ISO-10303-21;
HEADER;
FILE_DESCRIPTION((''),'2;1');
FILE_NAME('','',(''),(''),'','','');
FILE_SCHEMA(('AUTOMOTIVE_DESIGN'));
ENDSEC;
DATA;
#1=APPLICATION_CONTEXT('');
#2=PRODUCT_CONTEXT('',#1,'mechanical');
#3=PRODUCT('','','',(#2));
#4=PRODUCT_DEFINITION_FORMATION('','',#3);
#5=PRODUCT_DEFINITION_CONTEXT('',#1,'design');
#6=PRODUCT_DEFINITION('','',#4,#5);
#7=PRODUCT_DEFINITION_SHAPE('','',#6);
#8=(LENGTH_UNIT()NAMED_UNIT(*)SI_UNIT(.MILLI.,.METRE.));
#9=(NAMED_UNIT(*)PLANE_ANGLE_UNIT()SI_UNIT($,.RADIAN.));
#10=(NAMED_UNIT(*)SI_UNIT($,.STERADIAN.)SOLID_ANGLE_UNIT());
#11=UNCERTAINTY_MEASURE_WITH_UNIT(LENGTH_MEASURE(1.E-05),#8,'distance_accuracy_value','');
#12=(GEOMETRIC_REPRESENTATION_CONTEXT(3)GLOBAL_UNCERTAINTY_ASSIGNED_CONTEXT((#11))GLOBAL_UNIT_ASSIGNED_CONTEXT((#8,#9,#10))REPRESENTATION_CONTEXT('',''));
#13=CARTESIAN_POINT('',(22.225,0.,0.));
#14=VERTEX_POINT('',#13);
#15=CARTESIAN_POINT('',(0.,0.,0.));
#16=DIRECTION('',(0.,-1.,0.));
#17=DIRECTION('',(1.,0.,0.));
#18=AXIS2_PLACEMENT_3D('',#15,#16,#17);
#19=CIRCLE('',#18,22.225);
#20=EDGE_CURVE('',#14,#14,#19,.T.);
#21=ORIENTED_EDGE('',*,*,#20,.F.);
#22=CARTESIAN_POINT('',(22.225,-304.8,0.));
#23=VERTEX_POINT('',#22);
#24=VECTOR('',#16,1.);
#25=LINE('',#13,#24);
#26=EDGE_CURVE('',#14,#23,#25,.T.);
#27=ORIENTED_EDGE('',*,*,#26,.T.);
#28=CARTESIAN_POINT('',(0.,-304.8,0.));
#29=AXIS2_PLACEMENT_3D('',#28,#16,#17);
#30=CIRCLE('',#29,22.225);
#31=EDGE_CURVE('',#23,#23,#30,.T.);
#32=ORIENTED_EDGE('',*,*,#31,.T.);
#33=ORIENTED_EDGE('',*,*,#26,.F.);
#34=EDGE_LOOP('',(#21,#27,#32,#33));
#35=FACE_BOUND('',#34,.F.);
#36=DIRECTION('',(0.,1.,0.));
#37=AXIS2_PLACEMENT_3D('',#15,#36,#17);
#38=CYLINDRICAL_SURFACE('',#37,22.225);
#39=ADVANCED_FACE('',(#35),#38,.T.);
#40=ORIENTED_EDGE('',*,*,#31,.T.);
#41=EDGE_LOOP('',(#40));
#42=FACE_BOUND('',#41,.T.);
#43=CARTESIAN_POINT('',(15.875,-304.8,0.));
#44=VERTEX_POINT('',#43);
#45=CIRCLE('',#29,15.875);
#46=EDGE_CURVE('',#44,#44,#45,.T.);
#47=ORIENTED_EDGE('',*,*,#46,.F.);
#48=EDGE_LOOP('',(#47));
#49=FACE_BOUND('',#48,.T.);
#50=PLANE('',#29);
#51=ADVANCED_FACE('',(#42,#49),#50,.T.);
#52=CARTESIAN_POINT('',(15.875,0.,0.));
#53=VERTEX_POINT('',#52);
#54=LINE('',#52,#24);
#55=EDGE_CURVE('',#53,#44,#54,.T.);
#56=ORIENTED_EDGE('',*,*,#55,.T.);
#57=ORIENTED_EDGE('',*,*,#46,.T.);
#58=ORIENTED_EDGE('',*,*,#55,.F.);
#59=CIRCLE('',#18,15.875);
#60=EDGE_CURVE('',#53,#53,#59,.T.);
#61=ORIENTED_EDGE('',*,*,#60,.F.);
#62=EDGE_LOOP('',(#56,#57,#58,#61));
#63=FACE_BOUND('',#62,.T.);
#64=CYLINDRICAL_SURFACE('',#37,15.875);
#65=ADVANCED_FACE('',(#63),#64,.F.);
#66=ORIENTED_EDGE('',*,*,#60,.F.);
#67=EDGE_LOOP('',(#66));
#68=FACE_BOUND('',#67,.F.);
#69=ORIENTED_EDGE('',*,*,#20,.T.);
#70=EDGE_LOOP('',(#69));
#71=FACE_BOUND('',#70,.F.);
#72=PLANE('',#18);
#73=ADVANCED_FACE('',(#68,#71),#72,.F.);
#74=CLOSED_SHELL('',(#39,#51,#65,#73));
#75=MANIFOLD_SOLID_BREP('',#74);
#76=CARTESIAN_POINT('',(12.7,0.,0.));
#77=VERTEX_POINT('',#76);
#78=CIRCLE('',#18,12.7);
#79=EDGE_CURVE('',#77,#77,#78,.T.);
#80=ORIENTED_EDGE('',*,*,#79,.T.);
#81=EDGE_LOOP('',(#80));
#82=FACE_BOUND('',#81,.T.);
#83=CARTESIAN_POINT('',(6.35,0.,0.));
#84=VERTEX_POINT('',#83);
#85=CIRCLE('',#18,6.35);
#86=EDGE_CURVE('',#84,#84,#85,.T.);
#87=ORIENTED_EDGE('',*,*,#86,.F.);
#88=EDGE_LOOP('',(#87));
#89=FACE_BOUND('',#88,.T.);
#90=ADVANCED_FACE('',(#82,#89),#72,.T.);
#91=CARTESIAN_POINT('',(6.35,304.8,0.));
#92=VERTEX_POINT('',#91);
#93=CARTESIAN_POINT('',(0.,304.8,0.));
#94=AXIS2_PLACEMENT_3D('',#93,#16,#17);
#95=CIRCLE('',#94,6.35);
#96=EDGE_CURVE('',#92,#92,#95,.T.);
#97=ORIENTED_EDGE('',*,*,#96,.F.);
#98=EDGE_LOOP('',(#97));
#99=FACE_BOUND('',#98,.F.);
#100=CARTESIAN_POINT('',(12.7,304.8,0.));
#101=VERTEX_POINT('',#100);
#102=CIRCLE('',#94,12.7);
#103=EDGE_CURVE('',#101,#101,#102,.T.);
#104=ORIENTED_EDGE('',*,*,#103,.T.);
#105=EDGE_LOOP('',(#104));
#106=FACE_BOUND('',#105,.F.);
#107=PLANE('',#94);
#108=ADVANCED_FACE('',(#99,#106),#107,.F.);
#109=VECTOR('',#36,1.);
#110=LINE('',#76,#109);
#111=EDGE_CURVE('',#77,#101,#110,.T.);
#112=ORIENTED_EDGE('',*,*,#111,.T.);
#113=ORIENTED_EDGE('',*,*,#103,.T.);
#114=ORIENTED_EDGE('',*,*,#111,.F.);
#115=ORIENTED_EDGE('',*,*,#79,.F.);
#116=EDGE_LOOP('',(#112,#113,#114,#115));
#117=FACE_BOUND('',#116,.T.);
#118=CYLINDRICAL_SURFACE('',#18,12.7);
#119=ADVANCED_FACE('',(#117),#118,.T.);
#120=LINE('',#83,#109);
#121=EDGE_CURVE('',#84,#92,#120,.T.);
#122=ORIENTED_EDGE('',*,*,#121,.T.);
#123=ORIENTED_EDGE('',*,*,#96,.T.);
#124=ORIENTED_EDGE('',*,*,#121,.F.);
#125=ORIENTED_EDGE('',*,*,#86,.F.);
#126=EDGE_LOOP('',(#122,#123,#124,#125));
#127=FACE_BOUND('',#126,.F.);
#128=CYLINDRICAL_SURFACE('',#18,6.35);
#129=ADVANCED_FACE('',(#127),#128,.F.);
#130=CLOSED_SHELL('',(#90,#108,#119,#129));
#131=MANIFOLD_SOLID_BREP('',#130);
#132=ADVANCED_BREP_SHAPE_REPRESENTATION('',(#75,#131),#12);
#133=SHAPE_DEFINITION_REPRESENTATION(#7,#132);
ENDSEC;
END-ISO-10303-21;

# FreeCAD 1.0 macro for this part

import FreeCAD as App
import Part
import Sketcher
Q = App.Units.Quantity

doc = App.newDocument("Part")
body = doc.addObject("PartDesign::Body", "Body")

sketch1 = body.newObject("Sketcher::SketchObject", "Sketch")
sketch1.AttachmentSupport = (doc.getObject("XZ_Plane"), [""])
sketch1.MapMode = "FlatFace"
sketch1.addGeometry([
    Part.Circle(App.Vector(0, 0, 0), App.Vector(0, 0, 1), 22),
    Part.Circle(App.Vector(0, 0, 0), App.Vector(0, 0, 1), 16),
], False)
sketch1.addConstraint([
    Sketcher.Constraint("Coincident", 0, 3, -1, 1),
    Sketcher.Constraint("Coincident", 1, 3, -1, 1),
    Sketcher.Constraint("Diameter", 0, Q("1.75 in")),
    Sketcher.Constraint("Diameter", 1, Q("1.25 in")),
])
pad1 = body.newObject("PartDesign::Pad", "Pad")
pad1.Profile = sketch1
pad1.Length = Q("12 in")
body2 = doc.addObject("PartDesign::Body", "Body001")

sketch2 = body2.newObject("Sketcher::SketchObject", "Sketch001")
sketch2.AttachmentSupport = (doc.getObject("XZ_Plane001"), [""])
sketch2.MapMode = "FlatFace"
sketch2.addGeometry([
    Part.Circle(App.Vector(0, 0, 0), App.Vector(0, 0, 1), 13),
    Part.Circle(App.Vector(0, 0, 0), App.Vector(0, 0, 1), 6),
], False)
sketch2.addConstraint([
    Sketcher.Constraint("Coincident", 0, 3, -1, 1),
    Sketcher.Constraint("Coincident", 1, 3, -1, 1),
    Sketcher.Constraint("Diameter", 0, Q("1 in")),
    Sketcher.Constraint("Diameter", 1, Q("0.5 in")),
])
pad2 = body2.newObject("PartDesign::Pad", "Pad001")
pad2.Profile = sketch2
pad2.Length = Q("12 in")
pad2.Reversed = True

doc.recompute()
